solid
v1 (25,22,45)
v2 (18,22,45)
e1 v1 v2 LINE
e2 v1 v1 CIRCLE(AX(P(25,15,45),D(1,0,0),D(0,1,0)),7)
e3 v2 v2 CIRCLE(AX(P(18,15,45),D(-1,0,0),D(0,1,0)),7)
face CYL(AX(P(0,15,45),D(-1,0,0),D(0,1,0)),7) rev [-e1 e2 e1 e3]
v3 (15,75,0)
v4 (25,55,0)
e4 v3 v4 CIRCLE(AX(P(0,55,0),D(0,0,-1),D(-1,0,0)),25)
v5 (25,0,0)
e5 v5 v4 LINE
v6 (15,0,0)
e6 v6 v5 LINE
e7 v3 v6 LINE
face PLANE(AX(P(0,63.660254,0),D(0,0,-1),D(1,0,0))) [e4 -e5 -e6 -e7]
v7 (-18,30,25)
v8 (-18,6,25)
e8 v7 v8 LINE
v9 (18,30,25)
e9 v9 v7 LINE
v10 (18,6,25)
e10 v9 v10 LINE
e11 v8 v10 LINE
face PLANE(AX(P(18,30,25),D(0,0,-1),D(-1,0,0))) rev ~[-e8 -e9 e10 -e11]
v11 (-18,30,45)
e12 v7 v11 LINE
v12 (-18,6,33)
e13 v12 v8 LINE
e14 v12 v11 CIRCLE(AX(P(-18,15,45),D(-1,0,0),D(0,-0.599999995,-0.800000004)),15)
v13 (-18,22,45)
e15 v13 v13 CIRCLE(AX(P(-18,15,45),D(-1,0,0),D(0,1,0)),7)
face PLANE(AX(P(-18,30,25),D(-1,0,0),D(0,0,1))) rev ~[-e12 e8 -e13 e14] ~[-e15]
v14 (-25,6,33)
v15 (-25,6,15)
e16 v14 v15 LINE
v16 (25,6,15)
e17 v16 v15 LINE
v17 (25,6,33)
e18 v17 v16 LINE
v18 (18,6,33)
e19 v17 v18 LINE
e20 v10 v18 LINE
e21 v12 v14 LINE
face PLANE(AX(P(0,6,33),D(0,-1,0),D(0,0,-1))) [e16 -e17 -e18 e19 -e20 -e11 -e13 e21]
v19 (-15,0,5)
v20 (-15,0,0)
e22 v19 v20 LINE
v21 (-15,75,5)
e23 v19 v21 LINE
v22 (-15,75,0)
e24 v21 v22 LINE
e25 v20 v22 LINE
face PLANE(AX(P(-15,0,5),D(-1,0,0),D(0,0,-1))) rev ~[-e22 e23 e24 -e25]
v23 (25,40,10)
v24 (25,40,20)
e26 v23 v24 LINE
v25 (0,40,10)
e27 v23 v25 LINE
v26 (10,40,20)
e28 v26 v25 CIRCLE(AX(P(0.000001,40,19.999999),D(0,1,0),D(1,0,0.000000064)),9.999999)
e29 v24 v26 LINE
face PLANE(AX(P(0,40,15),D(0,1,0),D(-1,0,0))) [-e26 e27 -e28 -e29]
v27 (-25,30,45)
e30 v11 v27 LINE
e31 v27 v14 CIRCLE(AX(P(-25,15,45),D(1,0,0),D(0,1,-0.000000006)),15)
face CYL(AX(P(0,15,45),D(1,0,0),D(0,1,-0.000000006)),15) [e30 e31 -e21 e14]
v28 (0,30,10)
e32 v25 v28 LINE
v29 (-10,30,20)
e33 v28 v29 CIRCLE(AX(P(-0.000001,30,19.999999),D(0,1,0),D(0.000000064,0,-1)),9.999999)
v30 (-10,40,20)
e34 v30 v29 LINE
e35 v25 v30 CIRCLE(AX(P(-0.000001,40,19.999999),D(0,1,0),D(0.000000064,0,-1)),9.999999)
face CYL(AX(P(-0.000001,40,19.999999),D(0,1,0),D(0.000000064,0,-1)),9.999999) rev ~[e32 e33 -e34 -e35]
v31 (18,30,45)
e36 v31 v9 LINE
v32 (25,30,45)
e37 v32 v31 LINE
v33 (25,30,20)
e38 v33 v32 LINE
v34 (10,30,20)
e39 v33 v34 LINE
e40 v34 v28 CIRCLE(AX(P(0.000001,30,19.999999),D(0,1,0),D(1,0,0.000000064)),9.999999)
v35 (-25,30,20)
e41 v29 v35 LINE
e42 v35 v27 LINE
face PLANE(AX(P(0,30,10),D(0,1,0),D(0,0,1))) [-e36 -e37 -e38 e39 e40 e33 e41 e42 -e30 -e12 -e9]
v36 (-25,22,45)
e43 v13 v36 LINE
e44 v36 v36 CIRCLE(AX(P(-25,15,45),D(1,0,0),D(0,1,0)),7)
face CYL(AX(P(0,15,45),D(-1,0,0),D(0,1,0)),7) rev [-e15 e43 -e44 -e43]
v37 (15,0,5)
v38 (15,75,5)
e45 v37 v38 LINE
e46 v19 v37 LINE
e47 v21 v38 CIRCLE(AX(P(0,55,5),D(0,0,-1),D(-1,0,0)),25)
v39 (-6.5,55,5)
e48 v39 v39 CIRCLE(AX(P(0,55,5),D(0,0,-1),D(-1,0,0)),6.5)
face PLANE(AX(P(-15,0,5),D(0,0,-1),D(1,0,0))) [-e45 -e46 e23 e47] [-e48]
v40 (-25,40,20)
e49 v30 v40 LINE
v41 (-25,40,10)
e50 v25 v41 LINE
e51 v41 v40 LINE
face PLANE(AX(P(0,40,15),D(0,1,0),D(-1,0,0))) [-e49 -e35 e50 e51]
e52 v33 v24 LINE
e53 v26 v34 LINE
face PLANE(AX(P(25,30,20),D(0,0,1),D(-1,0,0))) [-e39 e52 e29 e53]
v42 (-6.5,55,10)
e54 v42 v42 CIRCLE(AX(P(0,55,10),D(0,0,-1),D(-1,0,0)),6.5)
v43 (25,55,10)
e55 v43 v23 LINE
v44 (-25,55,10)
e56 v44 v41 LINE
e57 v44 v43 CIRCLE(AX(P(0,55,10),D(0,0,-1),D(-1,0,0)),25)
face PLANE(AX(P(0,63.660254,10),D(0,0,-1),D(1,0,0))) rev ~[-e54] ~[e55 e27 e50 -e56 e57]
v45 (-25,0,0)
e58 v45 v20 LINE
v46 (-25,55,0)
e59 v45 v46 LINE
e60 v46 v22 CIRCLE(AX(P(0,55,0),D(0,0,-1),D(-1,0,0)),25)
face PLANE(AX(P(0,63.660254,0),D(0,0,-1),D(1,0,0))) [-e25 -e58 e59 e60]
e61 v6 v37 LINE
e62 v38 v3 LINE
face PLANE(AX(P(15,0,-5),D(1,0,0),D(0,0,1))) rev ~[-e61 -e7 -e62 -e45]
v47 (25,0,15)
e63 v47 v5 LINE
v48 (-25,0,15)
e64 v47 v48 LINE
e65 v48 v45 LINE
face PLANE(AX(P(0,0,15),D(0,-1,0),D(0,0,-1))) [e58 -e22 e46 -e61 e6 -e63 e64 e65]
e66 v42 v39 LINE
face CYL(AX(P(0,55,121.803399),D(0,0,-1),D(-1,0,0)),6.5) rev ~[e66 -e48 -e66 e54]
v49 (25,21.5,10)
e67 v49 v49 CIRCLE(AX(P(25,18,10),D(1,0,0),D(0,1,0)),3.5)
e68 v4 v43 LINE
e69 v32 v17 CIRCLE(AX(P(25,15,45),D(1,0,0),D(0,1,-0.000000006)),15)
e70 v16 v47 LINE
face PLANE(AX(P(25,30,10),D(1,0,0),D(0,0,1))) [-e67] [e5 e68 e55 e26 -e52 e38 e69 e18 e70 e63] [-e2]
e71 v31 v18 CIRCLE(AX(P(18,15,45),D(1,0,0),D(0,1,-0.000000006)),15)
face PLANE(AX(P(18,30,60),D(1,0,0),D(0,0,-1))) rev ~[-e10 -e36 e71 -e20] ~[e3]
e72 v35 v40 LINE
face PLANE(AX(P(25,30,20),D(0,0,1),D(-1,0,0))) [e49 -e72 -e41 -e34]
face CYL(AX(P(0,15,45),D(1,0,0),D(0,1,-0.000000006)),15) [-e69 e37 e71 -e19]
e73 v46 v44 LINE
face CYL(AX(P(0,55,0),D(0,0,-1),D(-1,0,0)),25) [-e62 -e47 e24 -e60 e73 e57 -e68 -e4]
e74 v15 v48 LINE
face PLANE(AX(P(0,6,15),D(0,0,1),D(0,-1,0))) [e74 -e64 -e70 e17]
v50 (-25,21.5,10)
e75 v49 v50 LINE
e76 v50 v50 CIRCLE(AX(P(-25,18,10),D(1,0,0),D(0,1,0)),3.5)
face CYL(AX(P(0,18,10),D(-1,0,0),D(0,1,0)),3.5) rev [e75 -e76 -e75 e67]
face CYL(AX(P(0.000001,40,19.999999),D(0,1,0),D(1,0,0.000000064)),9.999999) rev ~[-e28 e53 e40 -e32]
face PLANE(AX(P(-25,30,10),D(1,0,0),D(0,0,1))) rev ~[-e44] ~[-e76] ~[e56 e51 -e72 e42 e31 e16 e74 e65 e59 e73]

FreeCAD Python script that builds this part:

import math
import FreeCAD as App
import Part
import Sketcher
Q = App.Units.Quantity

doc = App.newDocument("Part")
params = doc.addObject("Spreadsheet::Sheet", "Params")
for row, (alias, value) in enumerate([
    ("sketch1_diameter", "7 mm"),
    ("sketch1_diameter2", "14 mm"),
    ("sketch1_radius", "15 mm"),
    ("sketch1_width", "55 mm"),
    ("sketch1_width2", "25 mm"),
    ("pad1_length", "50 mm"),
    ("sketch2_radius", "25 mm"),
    ("pad2_length", "10 mm"),
    ("sketch3_diameter", "13 mm"),
    ("hole_diameter", "13 mm"),
    ("sketch4_width", "36 mm"),
    ("sketch4_height", "35 mm"),
    ("sketch5_width", "30 mm"),
    ("sketch5_height", "10 mm"),
    ("sketch6_width", "50 mm"),
    ("sketch6_height", "10 mm"),
    ("pad3_length", "10 mm"),
    ("sketch7_radius", "9.999999 mm"),
    ("pocket3_length", "10 mm"),
], start=1):
    params.set(f"A{row}", alias)
    params.set(f"B{row}", "=" + value)
    params.setAlias(f"B{row}", alias)

body = doc.addObject("PartDesign::Body", "Body")

# Sketch on YZ plane
sketch1 = body.newObject("Sketcher::SketchObject", "Sketch")
sketch1.AttachmentSupport = (doc.getObject("YZ_Plane"), [""])
sketch1.MapMode = "FlatFace"
sketch1.addGeometry(Part.LineSegment(App.Vector(0, 15, 0), App.Vector(0, 0, 0)), False)
sketch1.addGeometry(Part.LineSegment(App.Vector(0, 0, 0), App.Vector(55, 0, 0)), False)
sketch1.addGeometry(Part.LineSegment(App.Vector(55, 0, 0), App.Vector(55, 10, 0)), False)
sketch1.addGeometry(Part.LineSegment(App.Vector(55, 10, 0), App.Vector(30, 10, 0)), False)
sketch1.addGeometry(Part.LineSegment(App.Vector(30, 10, 0), App.Vector(30, 45, 0)), False)
sketch1.addGeometry(Part.ArcOfCircle(Part.Circle(App.Vector(15, 45, 0), App.Vector(0, 0, 1), 15), math.radians(0), math.radians(233.130103)), False)
sketch1.addGeometry(Part.LineSegment(App.Vector(6, 33, 0), App.Vector(6, 15, 0)), False)
sketch1.addGeometry(Part.LineSegment(App.Vector(6, 15, 0), App.Vector(0, 15, 0)), False)
sketch1.addGeometry(Part.Circle(App.Vector(18, 10, 0), App.Vector(0, 0, 1), 3.5), False)
sketch1.addGeometry(Part.Circle(App.Vector(15, 45, 0), App.Vector(0, 0, 1), 7), False)
sketch1.addConstraint(Sketcher.Constraint("Coincident", 0, 2, 1, 1))
sketch1.addConstraint(Sketcher.Constraint("Coincident", 1, 2, 2, 1))
sketch1.addConstraint(Sketcher.Constraint("Coincident", 2, 2, 3, 1))
sketch1.addConstraint(Sketcher.Constraint("Coincident", 3, 2, 4, 1))
sketch1.addConstraint(Sketcher.Constraint("Tangent", 4, 2, 5, 1))
sketch1.addConstraint(Sketcher.Constraint("Coincident", 5, 2, 6, 1))
sketch1.addConstraint(Sketcher.Constraint("Coincident", 6, 2, 7, 1))
sketch1.addConstraint(Sketcher.Constraint("Coincident", 7, 2, 0, 1))
sketch1.addConstraint(Sketcher.Constraint("Vertical", 0))
sketch1.addConstraint(Sketcher.Constraint("Horizontal", 1))
sketch1.addConstraint(Sketcher.Constraint("Vertical", 2))
sketch1.addConstraint(Sketcher.Constraint("Horizontal", 3))
sketch1.addConstraint(Sketcher.Constraint("Vertical", 4))
sketch1.addConstraint(Sketcher.Constraint("Vertical", 6))
sketch1.addConstraint(Sketcher.Constraint("Horizontal", 7))
sketch1.addConstraint(Sketcher.Constraint("Coincident", 0, 2, -1, 1))
sketch1.addConstraint(Sketcher.Constraint("Coincident", 9, 3, 5, 3))
sketch1.addConstraint(Sketcher.Constraint("Horizontal", 8, 3, 2, 2))
sketch1.addConstraint(Sketcher.Constraint("Diameter", 8, Q("7 mm")))
sketch1.addConstraint(Sketcher.Constraint("Diameter", 9, Q("14 mm")))
sketch1.addConstraint(Sketcher.Constraint("Radius", 5, Q("15 mm")))
sketch1.addConstraint(Sketcher.Constraint("DistanceX", 1, 1, 1, 2, Q("55 mm")))
sketch1.addConstraint(Sketcher.Constraint("DistanceX", 3, 2, 3, 1, Q("25 mm")))
sketch1.addConstraint(Sketcher.Constraint("DistanceX", 7, 2, 7, 1, Q("6 mm")))
sketch1.addConstraint(Sketcher.Constraint("DistanceY", 0, 2, 0, 1, Q("15 mm")))
sketch1.addConstraint(Sketcher.Constraint("DistanceY", 2, 1, 2, 2, Q("10 mm")))
sketch1.addConstraint(Sketcher.Constraint("DistanceY", 4, 1, 4, 2, Q("35 mm")))
sketch1.addConstraint(Sketcher.Constraint("DistanceX", -1, 1, 8, 3, Q("18 mm")))
sketch1.setExpression("Constraints[18]", "Params.sketch1_diameter")
sketch1.setExpression("Constraints[19]", "Params.sketch1_diameter2")
sketch1.setExpression("Constraints[20]", "Params.sketch1_radius")
sketch1.setExpression("Constraints[21]", "Params.sketch1_width")
sketch1.setExpression("Constraints[22]", "Params.sketch1_width2")
pad1 = body.newObject("PartDesign::Pad", "Pad")
pad1.Profile = sketch1
pad1.setExpression("Length", "Params.pad1_length")
pad1.Midplane = True

# Sketch on XY plane
sketch2 = body.newObject("Sketcher::SketchObject", "Sketch001")
sketch2.AttachmentSupport = (doc.getObject("XY_Plane"), [""])
sketch2.MapMode = "FlatFace"
sketch2.addGeometry(Part.LineSegment(App.Vector(25, 55, 0), App.Vector(-25, 55, 0)), False)
sketch2.addGeometry(Part.ArcOfCircle(Part.Circle(App.Vector(0, 55, 0), App.Vector(0, 0, 1), 25), math.radians(0), math.radians(180)), False)
sketch2.addConstraint(Sketcher.Constraint("Coincident", 0, 1, 1, 1))
sketch2.addConstraint(Sketcher.Constraint("Coincident", 1, 2, 0, 2))
sketch2.addConstraint(Sketcher.Constraint("Horizontal", 0))
sketch2.addConstraint(Sketcher.Constraint("PointOnObject", 1, 3, -2))
sketch2.addConstraint(Sketcher.Constraint("Horizontal", 1, 3, 0, 1))
sketch2.addConstraint(Sketcher.Constraint("Radius", 1, Q("25 mm")))
sketch2.addConstraint(Sketcher.Constraint("DistanceY", -1, 1, 1, 3, Q("55 mm")))
sketch2.setExpression("Constraints[5]", "Params.sketch2_radius")
pad2 = body.newObject("PartDesign::Pad", "Pad001")
pad2.Profile = sketch2
pad2.setExpression("Length", "Params.pad2_length")

# Sketch on XY plane
sketch3 = body.newObject("Sketcher::SketchObject", "Sketch002")
sketch3.AttachmentSupport = (doc.getObject("XY_Plane"), [""])
sketch3.MapMode = "FlatFace"
sketch3.AttachmentOffset = App.Placement(App.Vector(0, 0, 10), App.Rotation())
sketch3.addGeometry(Part.Circle(App.Vector(0, 55, 0), App.Vector(0, 0, 1), 6.5), False)
sketch3.addConstraint(Sketcher.Constraint("PointOnObject", 0, 3, -2))
sketch3.addConstraint(Sketcher.Constraint("Diameter", 0, Q("13 mm")))
sketch3.addConstraint(Sketcher.Constraint("DistanceY", -1, 1, 0, 3, Q("55 mm")))
sketch3.setExpression("Constraints[1]", "Params.sketch3_diameter")
doc.recompute()
hole = body.newObject("PartDesign::Hole", "Hole")
hole.Profile = sketch3
hole.ThreadType = "None"
hole.setExpression("Diameter", "Params.hole_diameter")
hole.DepthType = "ThroughAll"

# Sketch on XZ plane
sketch4 = body.newObject("Sketcher::SketchObject", "Sketch003")
sketch4.AttachmentSupport = (doc.getObject("XZ_Plane"), [""])
sketch4.MapMode = "FlatFace"
sketch4.AttachmentOffset = App.Placement(App.Vector(0, 0, -30), App.Rotation())
sketch4.addGeometry(Part.LineSegment(App.Vector(18, 60, 0), App.Vector(18, 25, 0)), False)
sketch4.addGeometry(Part.LineSegment(App.Vector(18, 25, 0), App.Vector(-18, 25, 0)), False)
sketch4.addGeometry(Part.LineSegment(App.Vector(-18, 25, 0), App.Vector(-18, 60, 0)), False)
sketch4.addGeometry(Part.LineSegment(App.Vector(-18, 60, 0), App.Vector(18, 60, 0)), False)
sketch4.addConstraint(Sketcher.Constraint("Coincident", 0, 2, 1, 1))
sketch4.addConstraint(Sketcher.Constraint("Coincident", 1, 2, 2, 1))
sketch4.addConstraint(Sketcher.Constraint("Coincident", 2, 2, 3, 1))
sketch4.addConstraint(Sketcher.Constraint("Coincident", 3, 2, 0, 1))
sketch4.addConstraint(Sketcher.Constraint("Vertical", 0))
sketch4.addConstraint(Sketcher.Constraint("Horizontal", 1))
sketch4.addConstraint(Sketcher.Constraint("Vertical", 2))
sketch4.addConstraint(Sketcher.Constraint("Horizontal", 3))
sketch4.addConstraint(Sketcher.Constraint("DistanceX", 1, 2, 1, 1, Q("36 mm")))
sketch4.addConstraint(Sketcher.Constraint("DistanceY", 0, 2, 0, 1, Q("35 mm")))
sketch4.addConstraint(Sketcher.Constraint("DistanceX", -1, 1, 0, 2, Q("18 mm")))
sketch4.addConstraint(Sketcher.Constraint("DistanceY", -1, 1, 0, 2, Q("25 mm")))
sketch4.setExpression("Constraints[8]", "Params.sketch4_width")
sketch4.setExpression("Constraints[9]", "Params.sketch4_height")
pocket1 = body.newObject("PartDesign::Pocket", "Pocket")
pocket1.Profile = sketch4
pocket1.Type = "ThroughAll"
pocket1.Reversed = True

# Sketch on XZ plane
sketch5 = body.newObject("Sketcher::SketchObject", "Sketch004")
sketch5.AttachmentSupport = (doc.getObject("XZ_Plane"), [""])
sketch5.MapMode = "FlatFace"
sketch5.addGeometry(Part.LineSegment(App.Vector(-15, 5, 0), App.Vector(-15, -5, 0)), False)
sketch5.addGeometry(Part.LineSegment(App.Vector(-15, -5, 0), App.Vector(15, -5, 0)), False)
sketch5.addGeometry(Part.LineSegment(App.Vector(15, -5, 0), App.Vector(15, 5, 0)), False)
sketch5.addGeometry(Part.LineSegment(App.Vector(15, 5, 0), App.Vector(-15, 5, 0)), False)
sketch5.addConstraint(Sketcher.Constraint("Coincident", 0, 2, 1, 1))
sketch5.addConstraint(Sketcher.Constraint("Coincident", 1, 2, 2, 1))
sketch5.addConstraint(Sketcher.Constraint("Coincident", 2, 2, 3, 1))
sketch5.addConstraint(Sketcher.Constraint("Coincident", 3, 2, 0, 1))
sketch5.addConstraint(Sketcher.Constraint("Vertical", 0))
sketch5.addConstraint(Sketcher.Constraint("Horizontal", 1))
sketch5.addConstraint(Sketcher.Constraint("Vertical", 2))
sketch5.addConstraint(Sketcher.Constraint("Horizontal", 3))
sketch5.addConstraint(Sketcher.Constraint("Symmetric", 0, 2, 2, 2, -1, 1))
sketch5.addConstraint(Sketcher.Constraint("DistanceX", 1, 1, 1, 2, Q("30 mm")))
sketch5.addConstraint(Sketcher.Constraint("DistanceY", 0, 2, 0, 1, Q("10 mm")))
sketch5.setExpression("Constraints[9]", "Params.sketch5_width")
sketch5.setExpression("Constraints[10]", "Params.sketch5_height")
pocket2 = body.newObject("PartDesign::Pocket", "Pocket001")
pocket2.Profile = sketch5
pocket2.Type = "ThroughAll"

# Sketch on XZ plane
sketch6 = body.newObject("Sketcher::SketchObject", "Sketch005")
sketch6.AttachmentSupport = (doc.getObject("XZ_Plane"), [""])
sketch6.MapMode = "FlatFace"
sketch6.AttachmentOffset = App.Placement(App.Vector(0, 0, -30), App.Rotation())
sketch6.addGeometry(Part.LineSegment(App.Vector(25, 20, 0), App.Vector(25, 10, 0)), False)
sketch6.addGeometry(Part.LineSegment(App.Vector(25, 10, 0), App.Vector(-25, 10, 0)), False)
sketch6.addGeometry(Part.LineSegment(App.Vector(-25, 10, 0), App.Vector(-25, 20, 0)), False)
sketch6.addGeometry(Part.LineSegment(App.Vector(-25, 20, 0), App.Vector(25, 20, 0)), False)
sketch6.addConstraint(Sketcher.Constraint("Coincident", 0, 2, 1, 1))
sketch6.addConstraint(Sketcher.Constraint("Coincident", 1, 2, 2, 1))
sketch6.addConstraint(Sketcher.Constraint("Coincident", 2, 2, 3, 1))
sketch6.addConstraint(Sketcher.Constraint("Coincident", 3, 2, 0, 1))
sketch6.addConstraint(Sketcher.Constraint("Vertical", 0))
sketch6.addConstraint(Sketcher.Constraint("Horizontal", 1))
sketch6.addConstraint(Sketcher.Constraint("Vertical", 2))
sketch6.addConstraint(Sketcher.Constraint("Horizontal", 3))
sketch6.addConstraint(Sketcher.Constraint("DistanceX", 1, 2, 1, 1, Q("50 mm")))
sketch6.addConstraint(Sketcher.Constraint("DistanceY", 0, 2, 0, 1, Q("10 mm")))
sketch6.addConstraint(Sketcher.Constraint("DistanceX", -1, 1, 0, 2, Q("25 mm")))
sketch6.addConstraint(Sketcher.Constraint("DistanceY", -1, 1, 0, 2, Q("10 mm")))
sketch6.setExpression("Constraints[8]", "Params.sketch6_width")
sketch6.setExpression("Constraints[9]", "Params.sketch6_height")
pad3 = body.newObject("PartDesign::Pad", "Pad002")
pad3.Profile = sketch6
pad3.setExpression("Length", "Params.pad3_length")
pad3.Reversed = True

# Sketch on XZ plane
sketch7 = body.newObject("Sketcher::SketchObject", "Sketch006")
sketch7.AttachmentSupport = (doc.getObject("XZ_Plane"), [""])
sketch7.MapMode = "FlatFace"
sketch7.AttachmentOffset = App.Placement(App.Vector(0, 0, -40), App.Rotation())
sketch7.addGeometry(Part.ArcOfCircle(Part.Circle(App.Vector(-0.000001, 19.999999, 0), App.Vector(0, 0, 1), 9.999999), math.radians(179.999996), math.radians(270.000004)), False)
sketch7.addGeometry(Part.LineSegment(App.Vector(-10, 20, 0), App.Vector(10, 20, 0)), False)
sketch7.addGeometry(Part.ArcOfCircle(Part.Circle(App.Vector(0.000001, 19.999999, 0), App.Vector(0, 0, 1), 9.999999), math.radians(-90.000004), math.radians(0.000004)), False)
sketch7.addConstraint(Sketcher.Constraint("Coincident", 0, 1, 1, 1))
sketch7.addConstraint(Sketcher.Constraint("Coincident", 1, 2, 2, 2))
sketch7.addConstraint(Sketcher.Constraint("Tangent", 2, 1, 0, 2))
sketch7.addConstraint(Sketcher.Constraint("Horizontal", 1))
sketch7.addConstraint(Sketcher.Constraint("Equal", 0, 2))
sketch7.addConstraint(Sketcher.Constraint("PointOnObject", 0, 3, -2))
sketch7.addConstraint(Sketcher.Constraint("PointOnObject", 2, 1, -2))
sketch7.addConstraint(Sketcher.Constraint("Horizontal", 2, 3, 0, 1))
sketch7.addConstraint(Sketcher.Constraint("Radius", 0, Q("9.999999 mm")))
sketch7.addConstraint(Sketcher.Constraint("DistanceY", -1, 1, 0, 3, Q("19.999999 mm")))
sketch7.setExpression("Constraints[8]", "Params.sketch7_radius")
pocket3 = body.newObject("PartDesign::Pocket", "Pocket002")
pocket3.Profile = sketch7
pocket3.setExpression("Length", "Params.pocket3_length")
pocket3.Reversed = True

doc.recompute()
